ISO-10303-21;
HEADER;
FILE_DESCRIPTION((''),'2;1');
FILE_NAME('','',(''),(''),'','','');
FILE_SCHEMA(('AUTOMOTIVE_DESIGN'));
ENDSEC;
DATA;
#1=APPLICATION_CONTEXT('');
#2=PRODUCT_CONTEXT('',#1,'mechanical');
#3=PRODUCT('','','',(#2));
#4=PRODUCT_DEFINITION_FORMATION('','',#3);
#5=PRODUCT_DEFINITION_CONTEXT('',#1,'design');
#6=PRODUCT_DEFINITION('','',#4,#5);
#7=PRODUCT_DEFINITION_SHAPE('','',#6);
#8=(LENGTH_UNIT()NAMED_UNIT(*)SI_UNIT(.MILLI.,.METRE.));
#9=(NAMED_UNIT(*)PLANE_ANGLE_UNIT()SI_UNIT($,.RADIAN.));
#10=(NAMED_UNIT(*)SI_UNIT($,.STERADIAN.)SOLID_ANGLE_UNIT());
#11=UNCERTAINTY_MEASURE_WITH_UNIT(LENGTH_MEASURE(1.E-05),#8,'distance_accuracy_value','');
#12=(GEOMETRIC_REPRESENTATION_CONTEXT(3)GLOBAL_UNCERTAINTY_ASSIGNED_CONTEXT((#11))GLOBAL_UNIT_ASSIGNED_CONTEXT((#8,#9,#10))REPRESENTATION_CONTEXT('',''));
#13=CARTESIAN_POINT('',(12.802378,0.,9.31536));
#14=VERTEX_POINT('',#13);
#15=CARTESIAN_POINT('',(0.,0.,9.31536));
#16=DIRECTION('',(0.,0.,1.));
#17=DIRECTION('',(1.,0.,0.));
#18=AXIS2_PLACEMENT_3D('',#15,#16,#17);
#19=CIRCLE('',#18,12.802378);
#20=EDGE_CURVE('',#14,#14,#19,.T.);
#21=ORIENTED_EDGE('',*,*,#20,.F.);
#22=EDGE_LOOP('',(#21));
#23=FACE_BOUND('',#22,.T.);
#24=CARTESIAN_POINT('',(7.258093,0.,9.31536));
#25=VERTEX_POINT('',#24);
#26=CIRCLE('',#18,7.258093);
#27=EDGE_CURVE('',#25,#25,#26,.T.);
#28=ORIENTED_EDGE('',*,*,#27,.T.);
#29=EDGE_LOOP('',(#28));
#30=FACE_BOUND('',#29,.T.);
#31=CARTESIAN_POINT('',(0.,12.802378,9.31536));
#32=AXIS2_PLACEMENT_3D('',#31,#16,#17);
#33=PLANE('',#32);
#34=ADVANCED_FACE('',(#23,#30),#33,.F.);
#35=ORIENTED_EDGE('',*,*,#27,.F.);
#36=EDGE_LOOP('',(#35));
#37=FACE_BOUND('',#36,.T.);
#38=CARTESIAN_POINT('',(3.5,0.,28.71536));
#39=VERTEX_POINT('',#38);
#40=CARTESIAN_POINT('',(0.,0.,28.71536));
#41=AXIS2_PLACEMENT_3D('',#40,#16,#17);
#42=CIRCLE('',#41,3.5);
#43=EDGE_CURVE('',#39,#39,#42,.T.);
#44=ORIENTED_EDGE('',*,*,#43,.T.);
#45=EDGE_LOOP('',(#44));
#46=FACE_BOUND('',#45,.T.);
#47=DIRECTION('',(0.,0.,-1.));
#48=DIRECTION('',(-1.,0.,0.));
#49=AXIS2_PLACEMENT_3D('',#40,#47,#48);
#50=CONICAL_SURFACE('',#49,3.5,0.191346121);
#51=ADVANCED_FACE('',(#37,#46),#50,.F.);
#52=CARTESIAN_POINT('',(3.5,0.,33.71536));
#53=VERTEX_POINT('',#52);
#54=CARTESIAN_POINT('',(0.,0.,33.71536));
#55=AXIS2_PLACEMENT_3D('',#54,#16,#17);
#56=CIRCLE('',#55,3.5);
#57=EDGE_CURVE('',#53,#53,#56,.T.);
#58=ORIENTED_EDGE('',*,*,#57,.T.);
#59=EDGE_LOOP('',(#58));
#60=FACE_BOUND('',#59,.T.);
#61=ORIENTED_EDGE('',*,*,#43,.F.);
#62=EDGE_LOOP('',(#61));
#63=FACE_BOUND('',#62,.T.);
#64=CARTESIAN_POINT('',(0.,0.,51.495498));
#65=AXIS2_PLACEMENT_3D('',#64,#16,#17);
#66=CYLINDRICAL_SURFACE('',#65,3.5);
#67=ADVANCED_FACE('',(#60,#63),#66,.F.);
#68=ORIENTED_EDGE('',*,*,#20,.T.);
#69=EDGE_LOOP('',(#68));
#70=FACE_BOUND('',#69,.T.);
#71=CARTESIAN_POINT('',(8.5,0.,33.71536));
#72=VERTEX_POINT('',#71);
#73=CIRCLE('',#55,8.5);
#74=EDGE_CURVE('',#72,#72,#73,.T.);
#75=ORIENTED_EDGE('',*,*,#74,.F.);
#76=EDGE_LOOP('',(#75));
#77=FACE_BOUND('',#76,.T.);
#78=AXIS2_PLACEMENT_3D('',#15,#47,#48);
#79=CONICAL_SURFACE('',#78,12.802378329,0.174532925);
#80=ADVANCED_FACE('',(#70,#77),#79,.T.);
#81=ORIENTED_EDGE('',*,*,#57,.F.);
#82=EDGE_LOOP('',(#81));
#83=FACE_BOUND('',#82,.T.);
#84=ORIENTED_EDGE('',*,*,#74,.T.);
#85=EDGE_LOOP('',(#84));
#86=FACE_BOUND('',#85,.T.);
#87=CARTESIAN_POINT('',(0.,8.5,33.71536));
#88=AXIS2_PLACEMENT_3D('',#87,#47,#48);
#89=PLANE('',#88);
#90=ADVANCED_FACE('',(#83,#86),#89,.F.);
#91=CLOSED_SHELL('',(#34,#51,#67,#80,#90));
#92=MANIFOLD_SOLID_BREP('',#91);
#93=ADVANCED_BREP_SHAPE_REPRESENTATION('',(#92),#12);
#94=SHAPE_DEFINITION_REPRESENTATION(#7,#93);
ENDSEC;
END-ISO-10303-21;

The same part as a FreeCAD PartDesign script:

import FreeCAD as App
import Part
import Sketcher

V = App.Vector
Q = App.Units.Quantity


def add_polygon(sketch, points):
    """Adds a closed chain of lines whose ends are joined by coincident constraints."""
    first, n = sketch.GeometryCount, len(points)
    for a, b in zip(points, points[1:] + points[:1]):
        sketch.addGeometry(Part.LineSegment(App.Vector(*a, 0), App.Vector(*b, 0)), False)
    for i in range(n):
        sketch.addConstraint(Sketcher.Constraint("Coincident", first + i, 2, first + (i + 1) % n, 1))

doc = App.newDocument("Part")
params = doc.addObject("Spreadsheet::Sheet", "Params")
for row, (alias, value) in enumerate([
    ("sketch1_width", "5 mm"),
    ("revolution_angle", "360 deg"),
], start=1):
    params.set(f"A{row}", alias)
    params.set(f"B{row}", "=" + value)
    params.setAlias(f"B{row}", alias)

body = doc.addObject("PartDesign::Body", "Body")

# Sketch on YZ plane
sketch1 = doc.addObject("Sketcher::SketchObject", "Sketch")
body.addObject(sketch1)
sketch1.AttachmentSupport = (doc.YZ_Plane, [""])
sketch1.MapMode = "FlatFace"
add_polygon(sketch1, [(3.5, 33.71536), (3.5, 28.71536), (7.258093, 9.31536), (12.802378, 9.31536), (8.5, 33.71536)])  # lines 0-4
sketch1.addConstraint([
    Sketcher.Constraint("Vertical", 0),
    Sketcher.Constraint("Horizontal", 2),
    Sketcher.Constraint("Horizontal", 4),
    Sketcher.Constraint("Equal", 4, 0),
    Sketcher.Constraint("DistanceX", 4, 2, 4, 1, Q("5 mm")),
    Sketcher.Constraint("Angle", 3, Q("100 deg")),
    Sketcher.Constraint("DistanceX", -1, 1, 0, 2, Q("3.5 mm")),
    Sketcher.Constraint("DistanceY", 1, 2, 0, 2, Q("19.4 mm")),
    Sketcher.Constraint("Distance", 1, Q("19.760649 mm")),
    Sketcher.Constraint("DistanceY", -1, 1, 0, 2, Q("28.71536 mm")),
])
sketch1.setExpression("Constraints[9]", "Params.sketch1_width")
revolution = doc.addObject("PartDesign::Revolution", "Revolution")
body.addObject(revolution)
revolution.Profile = sketch1
revolution.ReferenceAxis = (sketch1, ["V_Axis"])
revolution.setExpression("Angle", "Params.revolution_angle")

doc.recompute()
